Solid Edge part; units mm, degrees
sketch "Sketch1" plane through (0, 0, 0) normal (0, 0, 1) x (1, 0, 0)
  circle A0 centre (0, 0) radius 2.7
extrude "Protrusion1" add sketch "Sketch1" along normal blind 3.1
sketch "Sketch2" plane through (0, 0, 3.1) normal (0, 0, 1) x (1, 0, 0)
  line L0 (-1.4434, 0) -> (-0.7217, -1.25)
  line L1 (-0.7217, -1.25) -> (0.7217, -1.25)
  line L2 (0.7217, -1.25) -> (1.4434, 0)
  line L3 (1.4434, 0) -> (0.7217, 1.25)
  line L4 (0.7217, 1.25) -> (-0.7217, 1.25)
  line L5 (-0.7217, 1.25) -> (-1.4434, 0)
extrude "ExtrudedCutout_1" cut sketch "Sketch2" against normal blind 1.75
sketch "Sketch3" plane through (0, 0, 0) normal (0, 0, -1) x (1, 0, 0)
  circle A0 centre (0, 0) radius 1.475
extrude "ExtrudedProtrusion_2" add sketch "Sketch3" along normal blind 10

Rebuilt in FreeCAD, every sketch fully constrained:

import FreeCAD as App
import Part
import Sketcher
from FreeCAD import Vector
Q = App.Units.Quantity

doc = App.newDocument("Part")
body = doc.addObject("PartDesign::Body", "Body")

# Sketch on XY plane
sketch1 = doc.addObject("Sketcher::SketchObject", "Sketch")
body.addObject(sketch1)
sketch1.AttachmentSupport = (doc.XY_Plane, [""])
sketch1.MapMode = "FlatFace"
sketch1.addGeometry(Part.Circle(Vector(0, 0, 0), Vector(0, 0, 1), 2.7), False)
sketch1.addConstraint([
    Sketcher.Constraint("Coincident", 0, 3, -1, 1),
    Sketcher.Constraint("Diameter", 0, Q("5.4 mm")),
])
pad1 = doc.addObject("PartDesign::Pad", "Pad")
body.addObject(pad1)
pad1.Profile = sketch1
pad1.Length = 3.1

# Sketch on XY plane
sketch2 = doc.addObject("Sketcher::SketchObject", "Sketch001")
body.addObject(sketch2)
sketch2.AttachmentSupport = (doc.XY_Plane, [""])
sketch2.MapMode = "FlatFace"
sketch2.AttachmentOffset = App.Placement(Vector(0, 0, 3.1), App.Rotation())
sketch2.addGeometry([
    Part.LineSegment(Vector(-0.7217, 1.25, 0), Vector(-1.4434, 0, 0)),  # 0
    Part.LineSegment(Vector(-1.4434, 0, 0), Vector(-0.7217, -1.25, 0)),  # 1
    Part.LineSegment(Vector(-0.7217, -1.25, 0), Vector(0.7217, -1.25, 0)),  # 2
    Part.LineSegment(Vector(0.7217, -1.25, 0), Vector(1.4434, 0, 0)),  # 3
    Part.LineSegment(Vector(1.4434, 0, 0), Vector(0.7217, 1.25, 0)),  # 4
    Part.LineSegment(Vector(0.7217, 1.25, 0), Vector(-0.7217, 1.25, 0)),  # 5
], False)
sketch2.addConstraint([
    Sketcher.Constraint("Coincident", 0, 2, 1, 1),
    Sketcher.Constraint("Coincident", 1, 2, 2, 1),
    Sketcher.Constraint("Coincident", 2, 2, 3, 1),
    Sketcher.Constraint("Coincident", 3, 2, 4, 1),
    Sketcher.Constraint("Coincident", 4, 2, 5, 1),
    Sketcher.Constraint("Coincident", 5, 2, 0, 1),
    Sketcher.Constraint("Horizontal", 2),
    Sketcher.Constraint("Horizontal", 5),
    Sketcher.Constraint("Symmetric", 0, 2, 3, 2, -1, 1),
    Sketcher.Constraint("Symmetric", 1, 2, 4, 2, -1, 1),
    Sketcher.Constraint("PointOnObject", 0, 2, -1),
    Sketcher.Constraint("Parallel", 0, 3),
    Sketcher.Constraint("Vertical", 2, 2, 4, 2),
    Sketcher.Constraint("Angle", 0, Q("-120.0004 deg")),
    Sketcher.Constraint("DistanceY", 2, 2, 4, 2, Q("2.5 mm")),
    Sketcher.Constraint("DistanceX", 2, 1, 2, 2, Q("1.4434 mm")),
])
pocket1 = doc.addObject("PartDesign::Pocket", "Pocket")
body.addObject(pocket1)
pocket1.Profile = sketch2
pocket1.Length = 1.75

# Sketch on XY plane
sketch3 = doc.addObject("Sketcher::SketchObject", "Sketch002")
body.addObject(sketch3)
sketch3.AttachmentSupport = (doc.XY_Plane, [""])
sketch3.MapMode = "FlatFace"
sketch3.addGeometry(Part.Circle(Vector(0, 0, 0), Vector(0, 0, 1), 1.475), False)
sketch3.addConstraint([
    Sketcher.Constraint("Coincident", 0, 3, -1, 1),
    Sketcher.Constraint("Diameter", 0, Q("2.95 mm")),
])
pad2 = doc.addObject("PartDesign::Pad", "Pad001")
body.addObject(pad2)
pad2.Profile = sketch3
pad2.Length = 10
pad2.Reversed = True

doc.recompute()
